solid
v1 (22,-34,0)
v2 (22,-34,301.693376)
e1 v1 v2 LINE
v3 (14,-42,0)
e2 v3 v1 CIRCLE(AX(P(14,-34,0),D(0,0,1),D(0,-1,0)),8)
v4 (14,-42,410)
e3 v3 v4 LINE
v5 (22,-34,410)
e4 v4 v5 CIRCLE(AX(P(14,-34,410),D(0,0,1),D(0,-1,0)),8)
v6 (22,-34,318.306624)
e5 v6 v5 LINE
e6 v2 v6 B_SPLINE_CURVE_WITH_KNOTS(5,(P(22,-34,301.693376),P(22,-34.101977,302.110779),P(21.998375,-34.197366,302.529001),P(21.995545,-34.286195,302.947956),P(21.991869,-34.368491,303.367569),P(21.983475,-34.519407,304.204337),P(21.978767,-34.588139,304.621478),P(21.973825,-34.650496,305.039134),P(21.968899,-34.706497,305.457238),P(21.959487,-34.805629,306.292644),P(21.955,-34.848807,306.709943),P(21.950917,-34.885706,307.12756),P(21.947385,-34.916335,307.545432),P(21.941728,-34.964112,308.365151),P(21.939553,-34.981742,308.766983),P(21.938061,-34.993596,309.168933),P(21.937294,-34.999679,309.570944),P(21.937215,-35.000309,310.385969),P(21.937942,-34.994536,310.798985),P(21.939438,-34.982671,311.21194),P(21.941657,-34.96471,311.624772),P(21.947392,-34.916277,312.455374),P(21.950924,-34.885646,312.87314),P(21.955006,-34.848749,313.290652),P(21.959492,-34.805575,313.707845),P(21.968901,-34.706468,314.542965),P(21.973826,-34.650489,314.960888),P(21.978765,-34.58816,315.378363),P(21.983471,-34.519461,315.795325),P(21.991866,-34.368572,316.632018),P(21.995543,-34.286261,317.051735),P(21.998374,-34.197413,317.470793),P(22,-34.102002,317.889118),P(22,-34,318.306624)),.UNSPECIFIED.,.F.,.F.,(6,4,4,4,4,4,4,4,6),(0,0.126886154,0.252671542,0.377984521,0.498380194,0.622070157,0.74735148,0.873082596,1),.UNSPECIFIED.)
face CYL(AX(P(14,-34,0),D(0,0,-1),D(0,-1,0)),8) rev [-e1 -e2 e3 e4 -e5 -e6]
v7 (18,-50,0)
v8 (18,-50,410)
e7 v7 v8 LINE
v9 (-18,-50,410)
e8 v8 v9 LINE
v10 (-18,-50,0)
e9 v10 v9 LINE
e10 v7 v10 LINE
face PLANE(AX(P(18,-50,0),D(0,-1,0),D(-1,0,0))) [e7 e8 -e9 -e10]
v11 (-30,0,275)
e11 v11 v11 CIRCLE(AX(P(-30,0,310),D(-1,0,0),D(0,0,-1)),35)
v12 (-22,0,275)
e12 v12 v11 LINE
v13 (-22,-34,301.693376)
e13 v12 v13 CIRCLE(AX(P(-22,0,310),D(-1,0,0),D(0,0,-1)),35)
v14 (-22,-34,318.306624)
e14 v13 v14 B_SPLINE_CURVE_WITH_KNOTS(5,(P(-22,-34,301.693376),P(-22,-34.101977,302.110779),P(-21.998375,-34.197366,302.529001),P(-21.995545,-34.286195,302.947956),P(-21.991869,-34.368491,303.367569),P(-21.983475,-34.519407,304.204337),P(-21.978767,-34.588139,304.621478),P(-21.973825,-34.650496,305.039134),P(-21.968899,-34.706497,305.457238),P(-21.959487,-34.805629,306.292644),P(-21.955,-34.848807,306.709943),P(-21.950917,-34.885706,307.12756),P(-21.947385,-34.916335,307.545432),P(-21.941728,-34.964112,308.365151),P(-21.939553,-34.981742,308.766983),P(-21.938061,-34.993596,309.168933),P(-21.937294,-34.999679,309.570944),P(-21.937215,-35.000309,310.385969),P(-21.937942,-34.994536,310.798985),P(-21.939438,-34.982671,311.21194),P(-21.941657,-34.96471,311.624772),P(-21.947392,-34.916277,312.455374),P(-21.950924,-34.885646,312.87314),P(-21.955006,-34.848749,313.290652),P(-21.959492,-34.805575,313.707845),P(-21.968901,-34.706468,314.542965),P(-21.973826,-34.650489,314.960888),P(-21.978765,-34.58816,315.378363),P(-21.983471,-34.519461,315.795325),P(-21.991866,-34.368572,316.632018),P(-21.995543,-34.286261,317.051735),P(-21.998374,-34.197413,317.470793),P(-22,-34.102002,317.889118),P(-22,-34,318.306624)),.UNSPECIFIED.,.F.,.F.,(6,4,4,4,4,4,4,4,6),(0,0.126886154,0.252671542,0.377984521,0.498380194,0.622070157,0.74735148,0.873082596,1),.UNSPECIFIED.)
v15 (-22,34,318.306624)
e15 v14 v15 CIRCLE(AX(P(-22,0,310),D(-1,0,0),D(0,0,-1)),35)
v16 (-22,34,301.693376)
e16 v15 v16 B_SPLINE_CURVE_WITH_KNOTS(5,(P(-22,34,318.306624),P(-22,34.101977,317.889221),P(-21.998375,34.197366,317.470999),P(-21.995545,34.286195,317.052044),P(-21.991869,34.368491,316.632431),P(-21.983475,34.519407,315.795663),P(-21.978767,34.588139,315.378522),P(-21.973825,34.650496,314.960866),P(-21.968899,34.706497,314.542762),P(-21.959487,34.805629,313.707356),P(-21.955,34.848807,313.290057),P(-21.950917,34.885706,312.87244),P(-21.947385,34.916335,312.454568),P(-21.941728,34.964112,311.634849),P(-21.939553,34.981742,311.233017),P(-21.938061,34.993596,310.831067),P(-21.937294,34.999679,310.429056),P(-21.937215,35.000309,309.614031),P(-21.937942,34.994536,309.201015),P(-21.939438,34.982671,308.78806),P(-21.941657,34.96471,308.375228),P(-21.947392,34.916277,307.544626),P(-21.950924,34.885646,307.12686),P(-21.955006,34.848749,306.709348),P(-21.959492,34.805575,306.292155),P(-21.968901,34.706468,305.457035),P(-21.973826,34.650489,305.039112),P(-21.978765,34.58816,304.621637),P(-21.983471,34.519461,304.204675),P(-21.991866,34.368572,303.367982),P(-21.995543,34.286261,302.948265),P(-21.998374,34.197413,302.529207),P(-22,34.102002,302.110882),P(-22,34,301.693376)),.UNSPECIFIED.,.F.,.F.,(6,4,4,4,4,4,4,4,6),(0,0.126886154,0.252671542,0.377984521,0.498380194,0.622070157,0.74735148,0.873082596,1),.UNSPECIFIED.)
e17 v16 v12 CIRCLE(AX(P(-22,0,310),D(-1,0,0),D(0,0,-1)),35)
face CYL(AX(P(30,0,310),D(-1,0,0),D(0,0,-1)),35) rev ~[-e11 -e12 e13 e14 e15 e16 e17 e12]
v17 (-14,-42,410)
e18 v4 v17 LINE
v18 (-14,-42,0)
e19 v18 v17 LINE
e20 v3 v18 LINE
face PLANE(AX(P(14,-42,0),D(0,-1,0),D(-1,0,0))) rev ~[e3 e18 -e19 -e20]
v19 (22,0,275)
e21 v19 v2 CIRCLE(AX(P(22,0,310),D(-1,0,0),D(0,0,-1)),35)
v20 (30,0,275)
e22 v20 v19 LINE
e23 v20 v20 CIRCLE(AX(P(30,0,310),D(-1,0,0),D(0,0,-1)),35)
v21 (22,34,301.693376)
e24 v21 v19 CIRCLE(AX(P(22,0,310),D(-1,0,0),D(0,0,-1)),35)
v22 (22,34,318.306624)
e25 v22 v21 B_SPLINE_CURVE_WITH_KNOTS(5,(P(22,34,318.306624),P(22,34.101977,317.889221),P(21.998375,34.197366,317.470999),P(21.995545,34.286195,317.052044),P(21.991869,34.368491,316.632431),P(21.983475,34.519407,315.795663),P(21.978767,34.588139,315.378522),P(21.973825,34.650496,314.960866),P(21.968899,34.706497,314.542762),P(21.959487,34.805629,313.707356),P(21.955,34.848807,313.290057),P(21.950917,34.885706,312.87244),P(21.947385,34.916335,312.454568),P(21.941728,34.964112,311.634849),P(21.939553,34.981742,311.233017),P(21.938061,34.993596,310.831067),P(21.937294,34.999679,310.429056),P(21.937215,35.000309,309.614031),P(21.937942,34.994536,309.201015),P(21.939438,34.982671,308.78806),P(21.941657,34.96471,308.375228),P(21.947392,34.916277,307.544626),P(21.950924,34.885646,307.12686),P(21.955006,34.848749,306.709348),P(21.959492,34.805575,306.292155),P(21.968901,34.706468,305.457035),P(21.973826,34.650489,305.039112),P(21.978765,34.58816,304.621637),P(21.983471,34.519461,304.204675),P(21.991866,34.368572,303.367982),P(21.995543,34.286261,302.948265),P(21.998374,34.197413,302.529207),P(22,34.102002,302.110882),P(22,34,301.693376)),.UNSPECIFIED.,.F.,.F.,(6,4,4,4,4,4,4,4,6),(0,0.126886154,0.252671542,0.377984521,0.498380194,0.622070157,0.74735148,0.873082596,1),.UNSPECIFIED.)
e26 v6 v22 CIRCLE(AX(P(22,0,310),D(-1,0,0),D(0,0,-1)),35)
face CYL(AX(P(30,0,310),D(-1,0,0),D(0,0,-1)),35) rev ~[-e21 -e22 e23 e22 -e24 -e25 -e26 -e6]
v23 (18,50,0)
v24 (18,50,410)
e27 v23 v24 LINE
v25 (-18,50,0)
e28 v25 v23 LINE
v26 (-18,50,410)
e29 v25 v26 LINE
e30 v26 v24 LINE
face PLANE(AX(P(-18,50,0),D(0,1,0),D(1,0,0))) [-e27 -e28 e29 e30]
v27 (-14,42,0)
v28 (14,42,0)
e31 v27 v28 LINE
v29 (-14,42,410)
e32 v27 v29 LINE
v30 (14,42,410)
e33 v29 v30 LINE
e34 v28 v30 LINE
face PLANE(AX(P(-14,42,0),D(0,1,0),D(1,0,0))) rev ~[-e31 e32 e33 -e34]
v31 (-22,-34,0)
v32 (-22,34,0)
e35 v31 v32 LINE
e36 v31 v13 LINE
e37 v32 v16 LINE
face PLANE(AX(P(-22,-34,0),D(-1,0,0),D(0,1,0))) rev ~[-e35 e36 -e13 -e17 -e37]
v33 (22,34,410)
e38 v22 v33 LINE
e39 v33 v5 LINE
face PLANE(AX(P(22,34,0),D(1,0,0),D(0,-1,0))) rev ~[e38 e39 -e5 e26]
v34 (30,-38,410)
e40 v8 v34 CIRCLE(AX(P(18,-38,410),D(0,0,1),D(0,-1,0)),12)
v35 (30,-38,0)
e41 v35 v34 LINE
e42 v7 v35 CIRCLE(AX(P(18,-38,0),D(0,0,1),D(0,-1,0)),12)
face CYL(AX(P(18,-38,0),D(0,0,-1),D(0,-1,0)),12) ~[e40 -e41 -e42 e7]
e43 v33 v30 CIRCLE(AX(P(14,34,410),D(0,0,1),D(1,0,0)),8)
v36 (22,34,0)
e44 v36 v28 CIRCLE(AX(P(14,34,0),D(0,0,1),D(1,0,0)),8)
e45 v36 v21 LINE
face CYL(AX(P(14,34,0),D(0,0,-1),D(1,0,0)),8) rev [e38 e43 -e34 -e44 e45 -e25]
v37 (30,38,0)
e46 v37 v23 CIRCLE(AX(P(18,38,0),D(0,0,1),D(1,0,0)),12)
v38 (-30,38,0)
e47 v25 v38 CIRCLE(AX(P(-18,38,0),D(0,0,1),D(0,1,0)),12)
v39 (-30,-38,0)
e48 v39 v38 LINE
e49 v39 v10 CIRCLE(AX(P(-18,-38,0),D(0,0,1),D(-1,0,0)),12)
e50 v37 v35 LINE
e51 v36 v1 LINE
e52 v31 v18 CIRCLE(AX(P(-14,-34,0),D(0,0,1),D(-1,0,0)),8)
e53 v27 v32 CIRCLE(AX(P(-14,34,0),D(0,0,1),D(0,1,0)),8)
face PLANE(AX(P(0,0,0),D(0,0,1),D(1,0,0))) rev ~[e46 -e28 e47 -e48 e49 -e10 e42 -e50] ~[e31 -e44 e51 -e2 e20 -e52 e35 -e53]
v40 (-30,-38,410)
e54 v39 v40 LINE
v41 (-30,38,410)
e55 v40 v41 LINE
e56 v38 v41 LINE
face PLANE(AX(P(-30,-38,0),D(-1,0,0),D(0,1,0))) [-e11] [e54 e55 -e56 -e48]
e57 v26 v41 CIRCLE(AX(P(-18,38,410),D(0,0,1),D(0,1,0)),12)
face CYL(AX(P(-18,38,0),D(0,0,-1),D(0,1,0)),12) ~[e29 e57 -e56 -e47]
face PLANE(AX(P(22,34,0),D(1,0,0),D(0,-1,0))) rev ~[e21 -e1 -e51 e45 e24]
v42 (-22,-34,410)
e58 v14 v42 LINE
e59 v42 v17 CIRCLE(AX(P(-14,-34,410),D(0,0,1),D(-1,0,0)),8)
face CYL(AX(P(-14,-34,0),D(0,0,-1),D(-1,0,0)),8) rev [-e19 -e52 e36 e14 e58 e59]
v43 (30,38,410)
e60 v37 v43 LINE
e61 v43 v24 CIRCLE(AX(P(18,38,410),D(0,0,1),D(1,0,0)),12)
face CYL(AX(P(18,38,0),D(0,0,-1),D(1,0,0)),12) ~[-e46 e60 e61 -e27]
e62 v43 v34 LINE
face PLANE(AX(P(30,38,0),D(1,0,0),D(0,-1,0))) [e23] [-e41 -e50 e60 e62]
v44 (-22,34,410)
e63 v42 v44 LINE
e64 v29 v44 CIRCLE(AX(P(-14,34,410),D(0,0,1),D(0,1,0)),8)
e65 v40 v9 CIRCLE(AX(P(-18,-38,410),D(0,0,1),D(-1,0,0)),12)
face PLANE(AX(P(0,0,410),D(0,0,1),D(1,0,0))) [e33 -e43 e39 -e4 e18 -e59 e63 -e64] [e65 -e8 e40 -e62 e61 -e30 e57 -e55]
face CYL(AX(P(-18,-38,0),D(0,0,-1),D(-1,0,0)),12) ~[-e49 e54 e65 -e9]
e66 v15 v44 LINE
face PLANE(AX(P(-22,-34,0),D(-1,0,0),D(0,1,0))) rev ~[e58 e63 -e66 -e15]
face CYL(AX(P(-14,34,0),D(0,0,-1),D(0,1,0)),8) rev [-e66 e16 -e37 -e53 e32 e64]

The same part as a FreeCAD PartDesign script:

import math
import FreeCAD as App
import Part
import Sketcher
from FreeCAD import Vector

doc = App.newDocument("Part")
body = doc.addObject("PartDesign::Body", "Body")

sketch1 = body.newObject("Sketcher::SketchObject", "Sketch")
sketch1.AttachmentSupport = (doc.getObject("XY_Plane"), [""])
sketch1.MapMode = "FlatFace"
sketch1.addGeometry([
    Part.LineSegment(Vector(-30, 38, 0), Vector(-30, -38, 0)),
    Part.ArcOfCircle(Part.Circle(Vector(-18, -38, 0), Vector(0, 0, 1), 12), math.radians(180), math.radians(270)),
    Part.LineSegment(Vector(-18, -50, 0), Vector(18, -50, 0)),
    Part.ArcOfCircle(Part.Circle(Vector(18, -38, 0), Vector(0, 0, 1), 12), math.radians(-90), math.radians(0)),
    Part.LineSegment(Vector(30, -38, 0), Vector(30, 38, 0)),
    Part.ArcOfCircle(Part.Circle(Vector(18, 38, 0), Vector(0, 0, 1), 12), math.radians(0), math.radians(90)),
    Part.LineSegment(Vector(18, 50, 0), Vector(-18, 50, 0)),
    Part.ArcOfCircle(Part.Circle(Vector(-18, 38, 0), Vector(0, 0, 1), 12), math.radians(90), math.radians(180)),
    Part.ArcOfCircle(Part.Circle(Vector(-14, 34, 0), Vector(0, 0, 1), 8), math.radians(90), math.radians(180)),
    Part.LineSegment(Vector(-14, 42, 0), Vector(14, 42, 0)),
    Part.ArcOfCircle(Part.Circle(Vector(14, 34, 0), Vector(0, 0, 1), 8), math.radians(0), math.radians(90)),
    Part.LineSegment(Vector(22, 34, 0), Vector(22, -34, 0)),
    Part.ArcOfCircle(Part.Circle(Vector(14, -34, 0), Vector(0, 0, 1), 8), math.radians(-90), math.radians(0)),
    Part.LineSegment(Vector(14, -42, 0), Vector(-14, -42, 0)),
    Part.ArcOfCircle(Part.Circle(Vector(-14, -34, 0), Vector(0, 0, 1), 8), math.radians(180), math.radians(270)),
    Part.LineSegment(Vector(-22, -34, 0), Vector(-22, 34, 0)),
], False)
sketch1.addConstraint([
    Sketcher.Constraint("Tangent", 0, 2, 1, 1),
    Sketcher.Constraint("Tangent", 1, 2, 2, 1),
    Sketcher.Constraint("Tangent", 2, 2, 3, 1),
    Sketcher.Constraint("Tangent", 3, 2, 4, 1),
    Sketcher.Constraint("Tangent", 4, 2, 5, 1),
    Sketcher.Constraint("Tangent", 5, 2, 6, 1),
    Sketcher.Constraint("Tangent", 6, 2, 7, 1),
    Sketcher.Constraint("Tangent", 7, 2, 0, 1),
    Sketcher.Constraint("Tangent", 8, 1, 9, 1),
    Sketcher.Constraint("Tangent", 9, 2, 10, 2),
    Sketcher.Constraint("Tangent", 10, 1, 11, 1),
    Sketcher.Constraint("Tangent", 11, 2, 12, 2),
    Sketcher.Constraint("Tangent", 12, 1, 13, 1),
    Sketcher.Constraint("Tangent", 13, 2, 14, 2),
    Sketcher.Constraint("Tangent", 14, 1, 15, 1),
    Sketcher.Constraint("Tangent", 15, 2, 8, 2),
    Sketcher.Constraint("Vertical", 0),
    Sketcher.Constraint("Horizontal", 2),
    Sketcher.Constraint("Vertical", 4),
    Sketcher.Constraint("Horizontal", 6),
    Sketcher.Constraint("Horizontal", 9),
    Sketcher.Constraint("Vertical", 11),
    Sketcher.Constraint("Horizontal", 13),
    Sketcher.Constraint("Vertical", 15),
    Sketcher.Constraint("Equal", 1, 3),
    Sketcher.Constraint("Equal", 3, 5),
    Sketcher.Constraint("Equal", 5, 7),
    Sketcher.Constraint("Equal", 8, 10),
    Sketcher.Constraint("Equal", 10, 12),
    Sketcher.Constraint("Equal", 12, 14),
    Sketcher.Constraint("Symmetric", 1, 3, 5, 3, -1, 1),
    Sketcher.Constraint("Symmetric", 8, 3, 12, 3, -1, 1),
    Sketcher.Constraint("Radius", 1, 12.0),
    Sketcher.Constraint("Radius", 8, 8.0),
    Sketcher.Constraint("DistanceX", 0, 2, -1, 1, 30.0),
    Sketcher.Constraint("DistanceY", 1, 2, -1, 1, 50.0),
    Sketcher.Constraint("DistanceY", 8, 1, 6, 2, 8.0),
    Sketcher.Constraint("DistanceX", 10, 1, 4, 2, 8.0),
])
pad1 = body.newObject("PartDesign::Pad", "Pad")
pad1.Profile = sketch1
pad1.Length = 410

sketch2 = body.newObject("Sketcher::SketchObject", "Sketch001")
sketch2.AttachmentSupport = (doc.getObject("YZ_Plane"), [""])
sketch2.MapMode = "FlatFace"
sketch2.AttachmentOffset = App.Placement(Vector(0, 0, 30), App.Rotation())
sketch2.addGeometry(Part.Circle(Vector(0, 310, 0), Vector(0, 0, 1), 35), False)
sketch2.addConstraint([
    Sketcher.Constraint("PointOnObject", 0, 3, -2),
    Sketcher.Constraint("Diameter", 0, 70.0),
    Sketcher.Constraint("DistanceY", -1, 1, 0, 3, 310.0),
])
doc.recompute()
hole = body.newObject("PartDesign::Hole", "Hole")
hole.Profile = sketch2
hole.ThreadType = "None"
hole.Diameter = 70
hole.DepthType = "ThroughAll"

doc.recompute()
